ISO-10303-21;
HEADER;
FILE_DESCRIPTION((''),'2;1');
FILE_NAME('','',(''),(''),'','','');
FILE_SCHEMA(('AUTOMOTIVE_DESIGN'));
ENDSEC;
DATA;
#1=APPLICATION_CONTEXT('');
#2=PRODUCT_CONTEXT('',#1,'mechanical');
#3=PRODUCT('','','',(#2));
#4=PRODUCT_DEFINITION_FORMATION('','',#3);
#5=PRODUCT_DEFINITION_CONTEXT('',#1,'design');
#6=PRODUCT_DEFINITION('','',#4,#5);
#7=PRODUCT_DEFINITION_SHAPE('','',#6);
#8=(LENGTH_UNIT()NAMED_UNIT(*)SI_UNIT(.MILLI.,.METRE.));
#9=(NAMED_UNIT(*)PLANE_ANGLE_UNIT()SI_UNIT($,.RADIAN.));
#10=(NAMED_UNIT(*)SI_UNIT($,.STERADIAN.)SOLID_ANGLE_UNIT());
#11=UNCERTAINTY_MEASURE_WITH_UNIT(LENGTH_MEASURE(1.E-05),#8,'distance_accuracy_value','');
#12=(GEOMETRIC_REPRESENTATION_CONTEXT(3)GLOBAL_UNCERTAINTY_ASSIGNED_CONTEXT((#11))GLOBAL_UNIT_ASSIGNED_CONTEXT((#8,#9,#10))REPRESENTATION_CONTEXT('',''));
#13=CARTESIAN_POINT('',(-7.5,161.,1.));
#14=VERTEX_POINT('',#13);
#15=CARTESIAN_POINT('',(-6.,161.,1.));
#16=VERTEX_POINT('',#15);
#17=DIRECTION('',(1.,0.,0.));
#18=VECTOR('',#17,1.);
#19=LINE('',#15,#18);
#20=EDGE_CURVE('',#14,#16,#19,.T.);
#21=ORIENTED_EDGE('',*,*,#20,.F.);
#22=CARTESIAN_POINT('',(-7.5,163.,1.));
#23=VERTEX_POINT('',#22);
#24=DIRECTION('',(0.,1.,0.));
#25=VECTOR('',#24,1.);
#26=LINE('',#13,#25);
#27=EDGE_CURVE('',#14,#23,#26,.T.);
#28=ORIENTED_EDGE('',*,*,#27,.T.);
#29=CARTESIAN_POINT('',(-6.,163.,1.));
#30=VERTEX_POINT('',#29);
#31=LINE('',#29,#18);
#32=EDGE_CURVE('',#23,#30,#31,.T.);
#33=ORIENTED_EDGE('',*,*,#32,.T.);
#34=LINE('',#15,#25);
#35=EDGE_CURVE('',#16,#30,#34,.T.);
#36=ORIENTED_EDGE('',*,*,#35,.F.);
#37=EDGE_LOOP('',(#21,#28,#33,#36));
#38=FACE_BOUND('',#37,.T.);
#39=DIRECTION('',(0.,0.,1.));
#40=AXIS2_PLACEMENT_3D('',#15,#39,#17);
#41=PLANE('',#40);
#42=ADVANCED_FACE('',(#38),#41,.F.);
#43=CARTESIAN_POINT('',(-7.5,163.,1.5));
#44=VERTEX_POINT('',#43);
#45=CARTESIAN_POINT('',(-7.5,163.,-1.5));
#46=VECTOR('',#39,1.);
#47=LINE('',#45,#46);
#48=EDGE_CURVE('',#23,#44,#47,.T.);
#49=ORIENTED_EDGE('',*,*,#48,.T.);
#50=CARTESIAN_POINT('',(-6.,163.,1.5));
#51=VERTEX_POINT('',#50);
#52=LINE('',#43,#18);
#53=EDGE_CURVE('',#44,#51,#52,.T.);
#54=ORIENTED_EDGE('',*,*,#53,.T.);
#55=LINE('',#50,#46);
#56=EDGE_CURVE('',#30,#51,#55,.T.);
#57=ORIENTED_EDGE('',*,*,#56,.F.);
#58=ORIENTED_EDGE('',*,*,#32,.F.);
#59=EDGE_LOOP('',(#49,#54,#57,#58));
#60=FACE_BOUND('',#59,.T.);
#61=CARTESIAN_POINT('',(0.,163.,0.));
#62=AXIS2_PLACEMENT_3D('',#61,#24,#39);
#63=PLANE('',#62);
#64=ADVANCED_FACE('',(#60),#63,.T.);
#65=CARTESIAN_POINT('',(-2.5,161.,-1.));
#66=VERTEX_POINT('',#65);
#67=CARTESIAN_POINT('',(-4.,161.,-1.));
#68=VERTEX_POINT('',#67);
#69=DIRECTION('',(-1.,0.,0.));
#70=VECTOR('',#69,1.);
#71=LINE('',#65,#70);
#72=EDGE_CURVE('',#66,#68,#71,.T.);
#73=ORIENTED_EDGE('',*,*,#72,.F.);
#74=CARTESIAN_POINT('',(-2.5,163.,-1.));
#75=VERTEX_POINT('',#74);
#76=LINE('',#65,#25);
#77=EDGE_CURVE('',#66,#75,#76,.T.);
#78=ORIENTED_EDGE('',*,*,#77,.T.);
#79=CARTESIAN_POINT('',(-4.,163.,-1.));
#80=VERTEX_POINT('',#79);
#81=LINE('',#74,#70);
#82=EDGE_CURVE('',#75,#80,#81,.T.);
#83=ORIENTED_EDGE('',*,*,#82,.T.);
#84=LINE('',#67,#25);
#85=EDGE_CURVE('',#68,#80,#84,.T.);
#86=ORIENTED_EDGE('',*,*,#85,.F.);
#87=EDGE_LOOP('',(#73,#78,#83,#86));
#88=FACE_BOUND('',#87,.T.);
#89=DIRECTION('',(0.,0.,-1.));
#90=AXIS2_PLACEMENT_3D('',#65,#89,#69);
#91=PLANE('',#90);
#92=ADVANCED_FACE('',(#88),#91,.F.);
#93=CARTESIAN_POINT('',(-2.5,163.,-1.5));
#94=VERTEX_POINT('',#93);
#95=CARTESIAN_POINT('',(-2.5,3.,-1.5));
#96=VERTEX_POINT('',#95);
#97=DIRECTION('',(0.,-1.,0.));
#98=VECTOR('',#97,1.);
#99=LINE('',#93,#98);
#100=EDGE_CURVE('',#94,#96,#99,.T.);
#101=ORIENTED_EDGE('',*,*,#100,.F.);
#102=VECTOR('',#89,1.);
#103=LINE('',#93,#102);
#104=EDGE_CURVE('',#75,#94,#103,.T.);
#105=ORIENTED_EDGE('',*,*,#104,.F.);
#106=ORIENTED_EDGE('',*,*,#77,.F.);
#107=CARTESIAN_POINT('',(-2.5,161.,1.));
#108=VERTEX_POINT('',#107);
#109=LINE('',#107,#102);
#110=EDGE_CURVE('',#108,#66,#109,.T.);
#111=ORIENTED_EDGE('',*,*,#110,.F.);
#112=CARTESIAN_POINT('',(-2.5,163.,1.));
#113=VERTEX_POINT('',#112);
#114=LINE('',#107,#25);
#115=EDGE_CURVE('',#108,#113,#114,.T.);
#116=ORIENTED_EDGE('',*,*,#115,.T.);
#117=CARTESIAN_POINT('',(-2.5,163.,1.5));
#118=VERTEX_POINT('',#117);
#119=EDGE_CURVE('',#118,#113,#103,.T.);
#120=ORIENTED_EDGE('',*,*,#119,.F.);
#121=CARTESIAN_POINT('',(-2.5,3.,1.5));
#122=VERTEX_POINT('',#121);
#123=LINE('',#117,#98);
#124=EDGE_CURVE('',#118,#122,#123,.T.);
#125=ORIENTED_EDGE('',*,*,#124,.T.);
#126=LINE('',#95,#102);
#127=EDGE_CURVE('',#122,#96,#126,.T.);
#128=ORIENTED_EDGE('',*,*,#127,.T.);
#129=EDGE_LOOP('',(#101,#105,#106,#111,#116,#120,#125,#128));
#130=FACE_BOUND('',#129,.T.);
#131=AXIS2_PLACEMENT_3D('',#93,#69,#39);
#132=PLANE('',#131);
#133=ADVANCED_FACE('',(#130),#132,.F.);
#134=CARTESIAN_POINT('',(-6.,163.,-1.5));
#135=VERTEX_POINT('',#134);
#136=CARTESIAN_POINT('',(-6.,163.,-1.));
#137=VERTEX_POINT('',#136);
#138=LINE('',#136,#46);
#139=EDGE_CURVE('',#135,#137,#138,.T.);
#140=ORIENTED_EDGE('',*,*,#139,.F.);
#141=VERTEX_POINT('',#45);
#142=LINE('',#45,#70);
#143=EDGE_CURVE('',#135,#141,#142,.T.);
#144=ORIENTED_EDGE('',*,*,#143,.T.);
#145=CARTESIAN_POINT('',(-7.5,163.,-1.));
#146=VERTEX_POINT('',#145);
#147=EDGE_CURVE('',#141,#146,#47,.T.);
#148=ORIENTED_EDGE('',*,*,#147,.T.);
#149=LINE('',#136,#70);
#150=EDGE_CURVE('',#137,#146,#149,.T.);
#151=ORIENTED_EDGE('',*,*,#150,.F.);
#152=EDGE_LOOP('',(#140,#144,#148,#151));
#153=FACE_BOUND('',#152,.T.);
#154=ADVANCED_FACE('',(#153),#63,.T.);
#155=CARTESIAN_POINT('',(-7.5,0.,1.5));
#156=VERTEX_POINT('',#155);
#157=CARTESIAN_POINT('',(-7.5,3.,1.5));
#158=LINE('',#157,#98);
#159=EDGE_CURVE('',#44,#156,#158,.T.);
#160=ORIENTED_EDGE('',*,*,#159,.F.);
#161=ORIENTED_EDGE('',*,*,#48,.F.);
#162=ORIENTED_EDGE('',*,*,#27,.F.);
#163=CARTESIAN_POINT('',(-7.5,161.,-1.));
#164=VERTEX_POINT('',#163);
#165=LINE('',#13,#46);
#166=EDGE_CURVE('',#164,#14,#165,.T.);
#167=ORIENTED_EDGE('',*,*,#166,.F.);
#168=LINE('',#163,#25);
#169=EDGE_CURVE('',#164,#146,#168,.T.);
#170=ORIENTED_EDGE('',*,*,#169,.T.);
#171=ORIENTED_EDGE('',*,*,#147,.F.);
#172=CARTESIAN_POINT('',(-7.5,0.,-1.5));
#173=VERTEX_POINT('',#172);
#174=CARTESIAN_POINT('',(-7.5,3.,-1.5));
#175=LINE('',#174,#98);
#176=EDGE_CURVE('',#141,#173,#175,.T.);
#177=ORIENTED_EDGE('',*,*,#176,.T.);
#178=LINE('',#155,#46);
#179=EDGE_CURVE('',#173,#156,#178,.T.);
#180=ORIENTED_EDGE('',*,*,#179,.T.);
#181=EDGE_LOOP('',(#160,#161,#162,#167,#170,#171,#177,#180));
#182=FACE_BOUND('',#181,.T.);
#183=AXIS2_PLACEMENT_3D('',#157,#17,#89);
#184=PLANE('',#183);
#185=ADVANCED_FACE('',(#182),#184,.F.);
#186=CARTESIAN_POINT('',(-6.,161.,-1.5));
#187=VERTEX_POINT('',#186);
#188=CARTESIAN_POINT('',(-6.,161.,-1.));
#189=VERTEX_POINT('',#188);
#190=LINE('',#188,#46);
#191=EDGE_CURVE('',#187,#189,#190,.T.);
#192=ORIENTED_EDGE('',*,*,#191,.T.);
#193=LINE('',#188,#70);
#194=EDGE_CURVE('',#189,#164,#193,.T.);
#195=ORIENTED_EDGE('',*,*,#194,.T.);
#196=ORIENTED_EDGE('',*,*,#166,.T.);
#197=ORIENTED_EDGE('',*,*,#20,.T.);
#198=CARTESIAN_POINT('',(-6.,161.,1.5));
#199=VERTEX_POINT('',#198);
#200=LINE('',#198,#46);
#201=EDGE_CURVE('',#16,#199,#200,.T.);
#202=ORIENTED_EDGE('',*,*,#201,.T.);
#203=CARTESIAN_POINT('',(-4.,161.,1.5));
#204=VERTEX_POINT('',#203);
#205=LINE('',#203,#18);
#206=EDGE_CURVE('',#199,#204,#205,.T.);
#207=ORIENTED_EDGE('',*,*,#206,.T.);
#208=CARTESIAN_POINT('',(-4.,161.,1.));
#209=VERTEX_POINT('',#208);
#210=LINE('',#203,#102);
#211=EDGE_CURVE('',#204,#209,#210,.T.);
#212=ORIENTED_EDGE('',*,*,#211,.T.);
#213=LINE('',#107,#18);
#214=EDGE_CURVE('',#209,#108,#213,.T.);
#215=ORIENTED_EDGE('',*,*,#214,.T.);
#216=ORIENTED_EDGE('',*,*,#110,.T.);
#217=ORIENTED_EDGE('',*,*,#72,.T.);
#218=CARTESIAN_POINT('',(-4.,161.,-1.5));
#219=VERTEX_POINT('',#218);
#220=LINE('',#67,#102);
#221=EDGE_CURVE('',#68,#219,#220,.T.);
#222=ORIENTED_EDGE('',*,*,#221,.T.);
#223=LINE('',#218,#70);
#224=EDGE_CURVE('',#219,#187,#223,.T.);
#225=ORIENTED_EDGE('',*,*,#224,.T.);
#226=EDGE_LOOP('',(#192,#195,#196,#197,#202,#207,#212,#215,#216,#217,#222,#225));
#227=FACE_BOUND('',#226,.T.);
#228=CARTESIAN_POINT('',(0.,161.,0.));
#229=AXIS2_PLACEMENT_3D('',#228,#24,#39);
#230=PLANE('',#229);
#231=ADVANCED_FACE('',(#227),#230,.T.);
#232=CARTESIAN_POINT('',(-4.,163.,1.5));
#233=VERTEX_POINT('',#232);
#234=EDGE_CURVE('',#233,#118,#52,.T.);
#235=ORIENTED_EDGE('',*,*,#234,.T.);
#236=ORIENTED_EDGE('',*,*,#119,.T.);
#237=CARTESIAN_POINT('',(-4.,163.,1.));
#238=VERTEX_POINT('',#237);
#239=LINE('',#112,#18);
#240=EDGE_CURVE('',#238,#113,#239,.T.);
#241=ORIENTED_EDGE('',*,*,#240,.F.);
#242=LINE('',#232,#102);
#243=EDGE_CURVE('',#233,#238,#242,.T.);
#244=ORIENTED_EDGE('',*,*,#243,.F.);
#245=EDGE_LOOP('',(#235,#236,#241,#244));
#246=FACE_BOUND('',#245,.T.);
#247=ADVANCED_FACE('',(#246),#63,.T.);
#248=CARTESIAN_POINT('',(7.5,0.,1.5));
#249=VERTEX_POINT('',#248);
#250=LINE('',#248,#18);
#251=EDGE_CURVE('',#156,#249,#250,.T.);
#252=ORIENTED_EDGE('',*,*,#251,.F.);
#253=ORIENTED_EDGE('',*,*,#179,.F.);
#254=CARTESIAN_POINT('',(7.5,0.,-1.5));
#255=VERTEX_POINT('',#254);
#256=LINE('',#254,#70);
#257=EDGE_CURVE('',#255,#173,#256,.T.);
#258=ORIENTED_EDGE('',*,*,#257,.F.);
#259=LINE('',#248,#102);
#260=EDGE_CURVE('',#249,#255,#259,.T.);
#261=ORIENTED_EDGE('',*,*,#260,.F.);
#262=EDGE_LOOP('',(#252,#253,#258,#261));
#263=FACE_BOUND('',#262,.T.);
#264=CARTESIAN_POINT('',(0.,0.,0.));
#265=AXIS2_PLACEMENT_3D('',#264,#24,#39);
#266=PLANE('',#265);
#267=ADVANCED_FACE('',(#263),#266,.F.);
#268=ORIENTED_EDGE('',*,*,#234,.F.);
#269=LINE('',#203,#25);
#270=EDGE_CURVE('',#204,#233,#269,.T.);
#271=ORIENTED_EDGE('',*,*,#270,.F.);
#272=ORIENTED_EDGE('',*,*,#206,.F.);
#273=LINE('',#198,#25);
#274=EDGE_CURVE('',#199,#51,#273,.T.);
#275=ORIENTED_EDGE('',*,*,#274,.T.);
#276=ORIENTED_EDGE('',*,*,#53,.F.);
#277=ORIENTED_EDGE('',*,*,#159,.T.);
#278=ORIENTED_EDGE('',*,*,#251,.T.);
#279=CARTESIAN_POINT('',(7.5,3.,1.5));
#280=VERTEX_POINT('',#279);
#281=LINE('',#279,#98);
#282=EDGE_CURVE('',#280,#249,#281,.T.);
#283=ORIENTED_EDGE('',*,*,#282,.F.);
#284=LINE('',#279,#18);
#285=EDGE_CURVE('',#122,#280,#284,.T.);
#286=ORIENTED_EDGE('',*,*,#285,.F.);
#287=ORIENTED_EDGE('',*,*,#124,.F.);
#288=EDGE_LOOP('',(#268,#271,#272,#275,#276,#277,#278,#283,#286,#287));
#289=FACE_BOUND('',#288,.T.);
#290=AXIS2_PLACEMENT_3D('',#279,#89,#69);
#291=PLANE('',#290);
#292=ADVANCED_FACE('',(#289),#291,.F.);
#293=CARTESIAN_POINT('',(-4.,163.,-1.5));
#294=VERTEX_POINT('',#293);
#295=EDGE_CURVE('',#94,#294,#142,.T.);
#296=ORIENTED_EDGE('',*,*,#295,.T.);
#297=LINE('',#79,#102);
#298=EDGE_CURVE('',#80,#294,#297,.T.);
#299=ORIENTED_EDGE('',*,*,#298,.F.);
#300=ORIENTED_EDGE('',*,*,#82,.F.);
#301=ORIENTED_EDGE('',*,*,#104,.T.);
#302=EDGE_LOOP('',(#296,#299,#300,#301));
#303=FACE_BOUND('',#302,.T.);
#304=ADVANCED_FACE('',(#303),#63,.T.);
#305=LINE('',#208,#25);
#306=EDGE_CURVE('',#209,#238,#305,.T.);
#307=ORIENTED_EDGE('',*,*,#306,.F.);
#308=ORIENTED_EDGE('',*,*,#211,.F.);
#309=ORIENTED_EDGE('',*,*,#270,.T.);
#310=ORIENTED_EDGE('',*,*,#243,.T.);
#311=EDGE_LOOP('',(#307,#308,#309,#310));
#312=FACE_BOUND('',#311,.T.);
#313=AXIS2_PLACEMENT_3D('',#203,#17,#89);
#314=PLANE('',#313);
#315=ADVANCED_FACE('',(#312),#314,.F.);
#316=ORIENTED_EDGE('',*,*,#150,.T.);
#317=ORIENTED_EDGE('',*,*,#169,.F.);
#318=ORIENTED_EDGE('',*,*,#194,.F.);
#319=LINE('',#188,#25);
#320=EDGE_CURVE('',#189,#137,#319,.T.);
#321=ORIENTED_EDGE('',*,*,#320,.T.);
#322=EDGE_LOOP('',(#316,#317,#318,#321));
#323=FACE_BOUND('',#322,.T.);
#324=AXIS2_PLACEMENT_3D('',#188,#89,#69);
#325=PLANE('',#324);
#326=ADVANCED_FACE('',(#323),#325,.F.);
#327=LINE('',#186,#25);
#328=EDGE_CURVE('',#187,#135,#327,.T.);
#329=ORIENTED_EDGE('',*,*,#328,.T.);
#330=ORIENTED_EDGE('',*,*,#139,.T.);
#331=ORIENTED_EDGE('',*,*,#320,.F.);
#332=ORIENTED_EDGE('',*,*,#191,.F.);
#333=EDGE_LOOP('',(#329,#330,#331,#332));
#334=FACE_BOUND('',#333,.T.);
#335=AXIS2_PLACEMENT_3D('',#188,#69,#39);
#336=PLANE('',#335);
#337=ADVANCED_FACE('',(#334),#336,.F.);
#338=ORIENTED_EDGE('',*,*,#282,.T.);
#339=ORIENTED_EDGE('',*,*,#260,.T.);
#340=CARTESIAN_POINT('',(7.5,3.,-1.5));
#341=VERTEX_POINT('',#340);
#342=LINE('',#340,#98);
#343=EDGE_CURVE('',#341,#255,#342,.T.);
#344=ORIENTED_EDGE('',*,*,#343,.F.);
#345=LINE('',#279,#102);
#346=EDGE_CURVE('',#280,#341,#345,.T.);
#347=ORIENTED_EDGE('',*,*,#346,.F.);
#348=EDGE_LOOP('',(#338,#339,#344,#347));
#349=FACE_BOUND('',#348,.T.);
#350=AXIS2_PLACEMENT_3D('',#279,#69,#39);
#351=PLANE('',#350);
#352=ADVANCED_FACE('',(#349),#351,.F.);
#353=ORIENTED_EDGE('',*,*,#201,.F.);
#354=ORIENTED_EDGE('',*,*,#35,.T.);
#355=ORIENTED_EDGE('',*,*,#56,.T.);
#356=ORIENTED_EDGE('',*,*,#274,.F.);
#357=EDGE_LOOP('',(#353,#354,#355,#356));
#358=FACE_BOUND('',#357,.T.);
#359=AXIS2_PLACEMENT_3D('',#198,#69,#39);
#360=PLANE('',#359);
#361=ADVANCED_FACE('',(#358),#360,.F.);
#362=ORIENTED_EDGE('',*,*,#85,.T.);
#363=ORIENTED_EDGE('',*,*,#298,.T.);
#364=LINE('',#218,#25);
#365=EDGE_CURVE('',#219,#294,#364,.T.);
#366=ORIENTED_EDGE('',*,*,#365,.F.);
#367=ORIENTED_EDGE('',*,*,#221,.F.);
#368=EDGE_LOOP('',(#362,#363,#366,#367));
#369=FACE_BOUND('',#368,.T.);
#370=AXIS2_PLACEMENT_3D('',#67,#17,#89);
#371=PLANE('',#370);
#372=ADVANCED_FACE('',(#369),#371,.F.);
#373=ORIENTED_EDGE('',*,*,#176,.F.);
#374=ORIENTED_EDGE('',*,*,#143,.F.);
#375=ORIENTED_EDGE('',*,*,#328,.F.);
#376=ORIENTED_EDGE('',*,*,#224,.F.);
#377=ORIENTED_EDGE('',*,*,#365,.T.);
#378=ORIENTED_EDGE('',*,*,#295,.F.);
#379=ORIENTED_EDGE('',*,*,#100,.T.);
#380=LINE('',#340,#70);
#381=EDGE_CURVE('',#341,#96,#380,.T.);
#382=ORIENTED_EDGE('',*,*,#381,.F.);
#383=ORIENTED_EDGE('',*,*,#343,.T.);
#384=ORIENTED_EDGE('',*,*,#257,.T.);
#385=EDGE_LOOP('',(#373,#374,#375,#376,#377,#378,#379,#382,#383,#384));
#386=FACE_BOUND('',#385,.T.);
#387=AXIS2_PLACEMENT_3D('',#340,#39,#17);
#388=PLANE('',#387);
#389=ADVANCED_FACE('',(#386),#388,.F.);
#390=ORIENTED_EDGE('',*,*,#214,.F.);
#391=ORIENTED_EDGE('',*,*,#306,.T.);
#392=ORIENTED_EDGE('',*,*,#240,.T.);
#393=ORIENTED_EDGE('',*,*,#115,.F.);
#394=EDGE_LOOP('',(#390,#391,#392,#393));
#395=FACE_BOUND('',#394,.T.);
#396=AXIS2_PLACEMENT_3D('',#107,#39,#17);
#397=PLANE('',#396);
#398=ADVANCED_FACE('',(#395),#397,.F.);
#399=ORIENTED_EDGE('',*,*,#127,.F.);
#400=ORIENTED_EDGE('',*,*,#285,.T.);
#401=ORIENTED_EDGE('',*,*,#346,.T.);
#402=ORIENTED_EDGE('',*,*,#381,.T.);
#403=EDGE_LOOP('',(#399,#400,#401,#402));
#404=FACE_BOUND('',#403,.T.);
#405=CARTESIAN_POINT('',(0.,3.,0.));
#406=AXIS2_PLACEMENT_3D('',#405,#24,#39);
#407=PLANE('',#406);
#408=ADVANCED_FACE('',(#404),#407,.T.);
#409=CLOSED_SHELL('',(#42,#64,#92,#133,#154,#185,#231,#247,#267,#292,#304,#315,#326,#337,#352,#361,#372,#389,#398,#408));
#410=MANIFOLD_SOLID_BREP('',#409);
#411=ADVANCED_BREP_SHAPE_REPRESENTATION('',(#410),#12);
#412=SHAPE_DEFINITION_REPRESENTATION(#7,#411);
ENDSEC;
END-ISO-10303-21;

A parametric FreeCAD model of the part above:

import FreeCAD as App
import Part
import Sketcher

V = App.Vector
Q = App.Units.Quantity

doc = App.newDocument("Part")
body = doc.addObject("PartDesign::Body", "Body")

# Sketch on XZ plane
sketch1 = doc.addObject("Sketcher::SketchObject", "Sketch")
body.addObject(sketch1)
sketch1.AttachmentSupport = (doc.XZ_Plane, [""])
sketch1.MapMode = "FlatFace"
sketch1.addGeometry(Part.LineSegment(V(-7.5, -1.5, 0), V(-7.5, 1.5, 0)), False)
sketch1.addGeometry(Part.LineSegment(V(-7.5, 1.5, 0), V(7.5, 1.5, 0)), False)
sketch1.addGeometry(Part.LineSegment(V(7.5, 1.5, 0), V(7.5, -1.5, 0)), False)
sketch1.addGeometry(Part.LineSegment(V(7.5, -1.5, 0), V(-7.5, -1.5, 0)), False)
sketch1.addConstraint(Sketcher.Constraint("Coincident", 0, 2, 1, 1))
sketch1.addConstraint(Sketcher.Constraint("Coincident", 1, 2, 2, 1))
sketch1.addConstraint(Sketcher.Constraint("Coincident", 2, 2, 3, 1))
sketch1.addConstraint(Sketcher.Constraint("Coincident", 3, 2, 0, 1))
sketch1.addConstraint(Sketcher.Constraint("Vertical", 0))
sketch1.addConstraint(Sketcher.Constraint("Horizontal", 1))
sketch1.addConstraint(Sketcher.Constraint("Vertical", 2))
sketch1.addConstraint(Sketcher.Constraint("Horizontal", 3))
sketch1.addConstraint(Sketcher.Constraint("Symmetric", 0, 2, 2, 2, -1, 1))
sketch1.addConstraint(Sketcher.Constraint("DistanceX", 1, 1, 1, 2, Q("15 mm")))
sketch1.addConstraint(Sketcher.Constraint("DistanceY", 0, 1, 0, 2, Q("3 mm")))
pad1 = doc.addObject("PartDesign::Pad", "Pad")
body.addObject(pad1)
pad1.Profile = sketch1
pad1.Length = 3
pad1.Reversed = True

# Sketch on XZ plane
sketch2 = doc.addObject("Sketcher::SketchObject", "Sketch001")
body.addObject(sketch2)
sketch2.AttachmentSupport = (doc.XZ_Plane, [""])
sketch2.MapMode = "FlatFace"
sketch2.AttachmentOffset = App.Placement(V(0, 0, -3), App.Rotation())
sketch2.addGeometry(Part.LineSegment(V(-7.5, -1.5, 0), V(-7.5, 1.5, 0)), False)
sketch2.addGeometry(Part.LineSegment(V(-7.5, 1.5, 0), V(-2.5, 1.5, 0)), False)
sketch2.addGeometry(Part.LineSegment(V(-2.5, 1.5, 0), V(-2.5, -1.5, 0)), False)
sketch2.addGeometry(Part.LineSegment(V(-2.5, -1.5, 0), V(-7.5, -1.5, 0)), False)
sketch2.addConstraint(Sketcher.Constraint("Coincident", 0, 2, 1, 1))
sketch2.addConstraint(Sketcher.Constraint("Coincident", 1, 2, 2, 1))
sketch2.addConstraint(Sketcher.Constraint("Coincident", 2, 2, 3, 1))
sketch2.addConstraint(Sketcher.Constraint("Coincident", 3, 2, 0, 1))
sketch2.addConstraint(Sketcher.Constraint("Vertical", 0))
sketch2.addConstraint(Sketcher.Constraint("Horizontal", 1))
sketch2.addConstraint(Sketcher.Constraint("Vertical", 2))
sketch2.addConstraint(Sketcher.Constraint("Horizontal", 3))
sketch2.addConstraint(Sketcher.Constraint("DistanceX", 1, 1, 1, 2, Q("5 mm")))
sketch2.addConstraint(Sketcher.Constraint("DistanceY", 0, 1, 0, 2, Q("3 mm")))
sketch2.addConstraint(Sketcher.Constraint("DistanceX", 0, 2, -1, 1, Q("7.5 mm")))
sketch2.addConstraint(Sketcher.Constraint("DistanceY", -1, 1, 0, 2, Q("1.5 mm")))
pad2 = doc.addObject("PartDesign::Pad", "Pad001")
body.addObject(pad2)
pad2.Profile = sketch2
pad2.Length = 160
pad2.Reversed = True

# Sketch on XZ plane
sketch3 = doc.addObject("Sketcher::SketchObject", "Sketch002")
body.addObject(sketch3)
sketch3.AttachmentSupport = (doc.XZ_Plane, [""])
sketch3.MapMode = "FlatFace"
sketch3.AttachmentOffset = App.Placement(V(0, 0, -163), App.Rotation())
sketch3.addGeometry(Part.LineSegment(V(-6, -1, 0), V(-7.5, -1, 0)), False)
sketch3.addGeometry(Part.LineSegment(V(-7.5, -1, 0), V(-7.5, 1, 0)), False)
sketch3.addGeometry(Part.LineSegment(V(-7.5, 1, 0), V(-6, 1, 0)), False)
sketch3.addGeometry(Part.LineSegment(V(-6, 1, 0), V(-6, 1.5, 0)), False)
sketch3.addGeometry(Part.LineSegment(V(-6, 1.5, 0), V(-4, 1.5, 0)), False)
sketch3.addGeometry(Part.LineSegment(V(-4, 1.5, 0), V(-4, 1, 0)), False)
sketch3.addGeometry(Part.LineSegment(V(-4, 1, 0), V(-2.5, 1, 0)), False)
sketch3.addGeometry(Part.LineSegment(V(-2.5, 1, 0), V(-2.5, -1, 0)), False)
sketch3.addGeometry(Part.LineSegment(V(-2.5, -1, 0), V(-4, -1, 0)), False)
sketch3.addGeometry(Part.LineSegment(V(-4, -1, 0), V(-4, -1.5, 0)), False)
sketch3.addGeometry(Part.LineSegment(V(-4, -1.5, 0), V(-6, -1.5, 0)), False)
sketch3.addGeometry(Part.LineSegment(V(-6, -1.5, 0), V(-6, -1, 0)), False)
sketch3.addConstraint(Sketcher.Constraint("Coincident", 0, 2, 1, 1))
sketch3.addConstraint(Sketcher.Constraint("Coincident", 1, 2, 2, 1))
sketch3.addConstraint(Sketcher.Constraint("Coincident", 2, 2, 3, 1))
sketch3.addConstraint(Sketcher.Constraint("Coincident", 3, 2, 4, 1))
sketch3.addConstraint(Sketcher.Constraint("Coincident", 4, 2, 5, 1))
sketch3.addConstraint(Sketcher.Constraint("Coincident", 5, 2, 6, 1))
sketch3.addConstraint(Sketcher.Constraint("Coincident", 6, 2, 7, 1))
sketch3.addConstraint(Sketcher.Constraint("Coincident", 7, 2, 8, 1))
sketch3.addConstraint(Sketcher.Constraint("Coincident", 8, 2, 9, 1))
sketch3.addConstraint(Sketcher.Constraint("Coincident", 9, 2, 10, 1))
sketch3.addConstraint(Sketcher.Constraint("Coincident", 10, 2, 11, 1))
sketch3.addConstraint(Sketcher.Constraint("Coincident", 11, 2, 0, 1))
sketch3.addConstraint(Sketcher.Constraint("Horizontal", 0))
sketch3.addConstraint(Sketcher.Constraint("Vertical", 1))
sketch3.addConstraint(Sketcher.Constraint("Horizontal", 2))
sketch3.addConstraint(Sketcher.Constraint("Vertical", 3))
sketch3.addConstraint(Sketcher.Constraint("Horizontal", 4))
sketch3.addConstraint(Sketcher.Constraint("Vertical", 5))
sketch3.addConstraint(Sketcher.Constraint("Horizontal", 6))
sketch3.addConstraint(Sketcher.Constraint("Vertical", 7))
sketch3.addConstraint(Sketcher.Constraint("Horizontal", 8))
sketch3.addConstraint(Sketcher.Constraint("Vertical", 9))
sketch3.addConstraint(Sketcher.Constraint("Horizontal", 10))
sketch3.addConstraint(Sketcher.Constraint("Vertical", 11))
sketch3.addConstraint(Sketcher.Constraint("Symmetric", 5, 2, 8, 2, -1))
sketch3.addConstraint(Sketcher.Constraint("Symmetric", 3, 2, 10, 2, -1))
sketch3.addConstraint(Sketcher.Constraint("Horizontal", 2, 2, 5, 2))
sketch3.addConstraint(Sketcher.Constraint("Horizontal", 0, 2, 7, 2))
sketch3.addConstraint(Sketcher.Constraint("Equal", 2, 6))
sketch3.addConstraint(Sketcher.Constraint("Equal", 10, 1))
sketch3.addConstraint(Sketcher.Constraint("DistanceX", 4, 1, 4, 2, Q("2 mm")))
sketch3.addConstraint(Sketcher.Constraint("DistanceX", 0, 2, 0, 1, Q("1.5 mm")))
sketch3.addConstraint(Sketcher.Constraint("DistanceY", 3, 1, 3, 2, Q("0.5 mm")))
sketch3.addConstraint(Sketcher.Constraint("DistanceX", 2, 2, -1, 1, Q("6 mm")))
pocket1 = doc.addObject("PartDesign::Pocket", "Pocket")
body.addObject(pocket1)
pocket1.Profile = sketch3
pocket1.Length = 2
pocket1.Reversed = True

doc.recompute()
